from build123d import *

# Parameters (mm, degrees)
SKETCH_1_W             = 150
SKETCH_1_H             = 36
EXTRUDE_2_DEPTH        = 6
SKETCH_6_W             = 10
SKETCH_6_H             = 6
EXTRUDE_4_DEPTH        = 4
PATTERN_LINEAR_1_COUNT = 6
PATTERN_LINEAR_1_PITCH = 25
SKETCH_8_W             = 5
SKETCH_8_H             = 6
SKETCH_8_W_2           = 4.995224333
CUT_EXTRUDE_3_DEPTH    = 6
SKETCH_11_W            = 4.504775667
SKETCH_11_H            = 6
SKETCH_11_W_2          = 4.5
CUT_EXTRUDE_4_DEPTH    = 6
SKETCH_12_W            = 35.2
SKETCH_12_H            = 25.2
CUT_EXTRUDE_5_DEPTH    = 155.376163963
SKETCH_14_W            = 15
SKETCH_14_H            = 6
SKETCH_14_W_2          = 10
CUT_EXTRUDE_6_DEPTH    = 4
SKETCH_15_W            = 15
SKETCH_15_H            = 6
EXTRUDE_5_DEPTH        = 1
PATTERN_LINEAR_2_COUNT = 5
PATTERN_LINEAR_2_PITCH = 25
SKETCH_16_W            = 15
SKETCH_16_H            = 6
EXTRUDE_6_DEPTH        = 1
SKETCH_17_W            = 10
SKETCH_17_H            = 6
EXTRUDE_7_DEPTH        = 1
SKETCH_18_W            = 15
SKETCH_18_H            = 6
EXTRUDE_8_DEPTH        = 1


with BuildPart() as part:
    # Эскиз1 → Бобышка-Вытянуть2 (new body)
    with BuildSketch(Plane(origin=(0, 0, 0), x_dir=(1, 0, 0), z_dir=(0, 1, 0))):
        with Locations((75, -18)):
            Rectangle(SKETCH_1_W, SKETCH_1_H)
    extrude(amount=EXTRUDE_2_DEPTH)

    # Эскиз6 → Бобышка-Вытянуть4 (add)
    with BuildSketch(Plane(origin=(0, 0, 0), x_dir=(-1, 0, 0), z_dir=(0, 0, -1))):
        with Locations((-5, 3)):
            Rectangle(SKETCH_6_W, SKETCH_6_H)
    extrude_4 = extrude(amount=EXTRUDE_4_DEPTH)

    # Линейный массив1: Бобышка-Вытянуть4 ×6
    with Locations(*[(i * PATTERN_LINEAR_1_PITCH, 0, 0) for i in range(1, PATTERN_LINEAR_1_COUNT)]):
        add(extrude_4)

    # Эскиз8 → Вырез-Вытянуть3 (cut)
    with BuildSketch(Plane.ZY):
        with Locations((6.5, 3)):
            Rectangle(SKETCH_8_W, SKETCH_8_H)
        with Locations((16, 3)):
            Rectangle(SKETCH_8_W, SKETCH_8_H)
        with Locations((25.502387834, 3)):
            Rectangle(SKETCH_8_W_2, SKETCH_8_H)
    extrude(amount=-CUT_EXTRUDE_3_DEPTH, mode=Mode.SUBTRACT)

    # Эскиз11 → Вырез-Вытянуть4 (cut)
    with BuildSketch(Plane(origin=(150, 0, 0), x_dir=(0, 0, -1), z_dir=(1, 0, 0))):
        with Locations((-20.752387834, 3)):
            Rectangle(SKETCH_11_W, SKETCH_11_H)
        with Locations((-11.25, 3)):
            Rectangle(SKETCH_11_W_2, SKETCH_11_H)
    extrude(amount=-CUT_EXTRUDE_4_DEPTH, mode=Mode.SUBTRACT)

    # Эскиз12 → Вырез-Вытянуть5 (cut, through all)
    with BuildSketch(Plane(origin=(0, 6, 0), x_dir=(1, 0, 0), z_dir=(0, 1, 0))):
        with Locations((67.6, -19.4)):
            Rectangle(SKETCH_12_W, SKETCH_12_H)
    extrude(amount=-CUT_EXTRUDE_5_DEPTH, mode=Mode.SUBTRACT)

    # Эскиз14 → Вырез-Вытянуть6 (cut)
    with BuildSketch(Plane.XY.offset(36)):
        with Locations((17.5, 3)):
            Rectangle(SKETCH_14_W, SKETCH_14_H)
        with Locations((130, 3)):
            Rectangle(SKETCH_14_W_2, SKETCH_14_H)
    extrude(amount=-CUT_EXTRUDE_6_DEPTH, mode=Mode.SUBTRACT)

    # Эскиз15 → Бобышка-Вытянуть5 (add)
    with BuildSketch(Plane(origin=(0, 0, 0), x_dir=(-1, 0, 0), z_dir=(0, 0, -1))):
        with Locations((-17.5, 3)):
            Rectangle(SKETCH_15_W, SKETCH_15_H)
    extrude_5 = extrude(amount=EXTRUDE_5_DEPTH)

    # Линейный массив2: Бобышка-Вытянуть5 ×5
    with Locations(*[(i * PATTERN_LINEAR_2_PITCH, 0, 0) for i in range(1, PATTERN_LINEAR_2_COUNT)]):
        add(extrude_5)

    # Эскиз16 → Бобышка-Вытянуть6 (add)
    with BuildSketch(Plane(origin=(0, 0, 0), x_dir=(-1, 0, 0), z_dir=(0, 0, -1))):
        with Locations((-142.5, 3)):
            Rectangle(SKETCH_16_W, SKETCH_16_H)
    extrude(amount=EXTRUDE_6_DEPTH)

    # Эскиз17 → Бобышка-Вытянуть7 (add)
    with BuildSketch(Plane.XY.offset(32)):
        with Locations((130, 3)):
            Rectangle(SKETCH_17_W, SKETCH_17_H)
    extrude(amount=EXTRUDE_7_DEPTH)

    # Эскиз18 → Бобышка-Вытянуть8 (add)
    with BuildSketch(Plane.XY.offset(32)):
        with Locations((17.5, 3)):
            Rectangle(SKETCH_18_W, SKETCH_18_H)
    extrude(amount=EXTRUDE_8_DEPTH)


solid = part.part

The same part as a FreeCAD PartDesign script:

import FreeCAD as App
import Part
import Sketcher
Q = App.Units.Quantity

doc = App.newDocument("Part")
params = doc.addObject("Spreadsheet::Sheet", "Params")
for row, (alias, value) in enumerate([
    ("sketch1_width", "150 mm"),
    ("sketch1_height", "36 mm"),
    ("pad1_length", "6 mm"),
    ("sketch2_width", "10 mm"),
    ("sketch2_height", "6 mm"),
    ("pad2_length", "4 mm"),
    ("linearpattern_pitch", "25 mm"),
    ("sketch3_width", "6 mm"),
    ("sketch3_height", "5 mm"),
    ("pocket1_length", "6 mm"),
    ("sketch4_width", "6 mm"),
    ("sketch4_height", "4.5 mm"),
    ("pocket2_length", "6 mm"),
    ("sketch5_width", "35.2 mm"),
    ("sketch5_height", "25.2 mm"),
    ("sketch6_width", "15 mm"),
    ("sketch6_width2", "10 mm"),
    ("sketch6_height", "6 mm"),
    ("pocket4_length", "4 mm"),
    ("sketch7_width", "15 mm"),
    ("sketch7_height", "6 mm"),
    ("pad3_length", "1 mm"),
    ("linearpattern2_pitch", "25 mm"),
    ("sketch8_width", "15 mm"),
    ("sketch8_height", "6 mm"),
    ("pad4_length", "1 mm"),
    ("sketch9_width", "10 mm"),
    ("sketch9_height", "6 mm"),
    ("pad5_length", "1 mm"),
    ("sketch10_width", "15 mm"),
    ("sketch10_height", "6 mm"),
    ("pad6_length", "1 mm"),
], start=1):
    params.set(f"A{row}", alias)
    params.set(f"B{row}", "=" + value)
    params.setAlias(f"B{row}", alias)

body = doc.addObject("PartDesign::Body", "Body")

sketch1 = doc.addObject("Sketcher::SketchObject", "Sketch")
body.addObject(sketch1)
sketch1.AttachmentSupport = (doc.XZ_Plane, [""])
sketch1.MapMode = "FlatFace"
sketch1.addGeometry([
    Part.LineSegment(App.Vector(0, 0, 0), App.Vector(0, 36, 0)),
    Part.LineSegment(App.Vector(0, 36, 0), App.Vector(150, 36, 0)),
    Part.LineSegment(App.Vector(150, 36, 0), App.Vector(150, 0, 0)),
    Part.LineSegment(App.Vector(150, 0, 0), App.Vector(0, 0, 0)),
], False)
sketch1.addConstraint([
    Sketcher.Constraint("Coincident", 0, 2, 1, 1),
    Sketcher.Constraint("Coincident", 1, 2, 2, 1),
    Sketcher.Constraint("Coincident", 2, 2, 3, 1),
    Sketcher.Constraint("Coincident", 3, 2, 0, 1),
    Sketcher.Constraint("Vertical", 0),
    Sketcher.Constraint("Horizontal", 1),
    Sketcher.Constraint("Vertical", 2),
    Sketcher.Constraint("Horizontal", 3),
    Sketcher.Constraint("Coincident", 3, 2, -1, 1),
    Sketcher.Constraint("DistanceX", 1, 1, 1, 2, Q("150 mm")),
    Sketcher.Constraint("DistanceY", 0, 1, 0, 2, Q("36 mm")),
])
sketch1.setExpression("Constraints[9]", "Params.sketch1_width")
sketch1.setExpression("Constraints[10]", "Params.sketch1_height")
pad1 = doc.addObject("PartDesign::Pad", "Pad")
body.addObject(pad1)
pad1.Profile = sketch1
pad1.setExpression("Length", "Params.pad1_length")
pad1.Reversed = True

sketch2 = doc.addObject("Sketcher::SketchObject", "Sketch001")
body.addObject(sketch2)
sketch2.AttachmentSupport = (doc.XY_Plane, [""])
sketch2.MapMode = "FlatFace"
sketch2.addGeometry([
    Part.LineSegment(App.Vector(10, 6, 0), App.Vector(10, 0, 0)),
    Part.LineSegment(App.Vector(10, 0, 0), App.Vector(0, 0, 0)),
    Part.LineSegment(App.Vector(0, 0, 0), App.Vector(0, 6, 0)),
    Part.LineSegment(App.Vector(0, 6, 0), App.Vector(10, 6, 0)),
], False)
sketch2.addConstraint([
    Sketcher.Constraint("Coincident", 0, 2, 1, 1),
    Sketcher.Constraint("Coincident", 1, 2, 2, 1),
    Sketcher.Constraint("Coincident", 2, 2, 3, 1),
    Sketcher.Constraint("Coincident", 3, 2, 0, 1),
    Sketcher.Constraint("Vertical", 0),
    Sketcher.Constraint("Horizontal", 1),
    Sketcher.Constraint("Vertical", 2),
    Sketcher.Constraint("Horizontal", 3),
    Sketcher.Constraint("Coincident", 1, 2, -1, 1),
    Sketcher.Constraint("DistanceX", 1, 2, 1, 1, Q("10 mm")),
    Sketcher.Constraint("DistanceY", 0, 2, 0, 1, Q("6 mm")),
])
sketch2.setExpression("Constraints[9]", "Params.sketch2_width")
sketch2.setExpression("Constraints[10]", "Params.sketch2_height")
pad2 = doc.addObject("PartDesign::Pad", "Pad001")
body.addObject(pad2)
pad2.Profile = sketch2
pad2.setExpression("Length", "Params.pad2_length")
pad2.Reversed = True
doc.recompute()

linearpattern = doc.addObject("PartDesign::LinearPattern", "LinearPattern")
body.addObject(linearpattern)
linearpattern.Originals = [pad2]
linearpattern.Direction = (doc.X_Axis, [""])
linearpattern.Mode = "offset"
linearpattern.setExpression("Offset", "Params.linearpattern_pitch")
linearpattern.Occurrences = 6
body.Tip = linearpattern

sketch3 = doc.addObject("Sketcher::SketchObject", "Sketch002")
body.addObject(sketch3)
sketch3.AttachmentSupport = (doc.YZ_Plane, [""])
sketch3.MapMode = "FlatFace"
sketch3.addGeometry([
    Part.LineSegment(App.Vector(6, 4, 0), App.Vector(0, 4, 0)),
    Part.LineSegment(App.Vector(0, 4, 0), App.Vector(0, 9, 0)),
    Part.LineSegment(App.Vector(0, 9, 0), App.Vector(6, 9, 0)),
    Part.LineSegment(App.Vector(6, 9, 0), App.Vector(6, 4, 0)),
    Part.LineSegment(App.Vector(6, 13.5, 0), App.Vector(0, 13.5, 0)),
    Part.LineSegment(App.Vector(0, 13.5, 0), App.Vector(0, 18.5, 0)),
    Part.LineSegment(App.Vector(0, 18.5, 0), App.Vector(6, 18.5, 0)),
    Part.LineSegment(App.Vector(6, 18.5, 0), App.Vector(6, 13.5, 0)),
    Part.LineSegment(App.Vector(6, 23.004776, 0), App.Vector(0, 23.004776, 0)),
    Part.LineSegment(App.Vector(0, 23.004776, 0), App.Vector(0, 28, 0)),
    Part.LineSegment(App.Vector(0, 28, 0), App.Vector(6, 28, 0)),
    Part.LineSegment(App.Vector(6, 28, 0), App.Vector(6, 23.004776, 0)),
], False)
sketch3.addConstraint([
    Sketcher.Constraint("Coincident", 0, 2, 1, 1),
    Sketcher.Constraint("Coincident", 1, 2, 2, 1),
    Sketcher.Constraint("Coincident", 2, 2, 3, 1),
    Sketcher.Constraint("Coincident", 3, 2, 0, 1),
    Sketcher.Constraint("Coincident", 4, 2, 5, 1),
    Sketcher.Constraint("Coincident", 5, 2, 6, 1),
    Sketcher.Constraint("Coincident", 6, 2, 7, 1),
    Sketcher.Constraint("Coincident", 7, 2, 4, 1),
    Sketcher.Constraint("Coincident", 8, 2, 9, 1),
    Sketcher.Constraint("Coincident", 9, 2, 10, 1),
    Sketcher.Constraint("Coincident", 10, 2, 11, 1),
    Sketcher.Constraint("Coincident", 11, 2, 8, 1),
    Sketcher.Constraint("Horizontal", 0),
    Sketcher.Constraint("Vertical", 1),
    Sketcher.Constraint("Horizontal", 2),
    Sketcher.Constraint("Vertical", 3),
    Sketcher.Constraint("Horizontal", 4),
    Sketcher.Constraint("Vertical", 5),
    Sketcher.Constraint("Horizontal", 6),
    Sketcher.Constraint("Vertical", 7),
    Sketcher.Constraint("Horizontal", 8),
    Sketcher.Constraint("Vertical", 9),
    Sketcher.Constraint("Horizontal", 10),
    Sketcher.Constraint("Vertical", 11),
    Sketcher.Constraint("PointOnObject", 0, 2, -2),
    Sketcher.Constraint("PointOnObject", 4, 2, -2),
    Sketcher.Constraint("PointOnObject", 8, 2, -2),
    Sketcher.Constraint("Vertical", 3, 2, 6, 2),
    Sketcher.Constraint("Vertical", 7, 2, 10, 2),
    Sketcher.Constraint("Equal", 3, 5),
    Sketcher.Constraint("DistanceX", 0, 2, 0, 1, Q("6 mm")),
    Sketcher.Constraint("DistanceY", 1, 1, 1, 2, Q("5 mm")),
    Sketcher.Constraint("DistanceY", -1, 1, 0, 2, Q("4 mm")),
    Sketcher.Constraint("DistanceY", -1, 1, 9, 2, Q("28 mm")),
    Sketcher.Constraint("DistanceY", -1, 1, 4, 2, Q("13.5 mm")),
    Sketcher.Constraint("DistanceY", 9, 1, 9, 2, Q("4.995224 mm")),
])
sketch3.setExpression("Constraints[30]", "Params.sketch3_width")
sketch3.setExpression("Constraints[31]", "Params.sketch3_height")
pocket1 = doc.addObject("PartDesign::Pocket", "Pocket")
body.addObject(pocket1)
pocket1.Profile = sketch3
pocket1.setExpression("Length", "Params.pocket1_length")
pocket1.Reversed = True

sketch4 = doc.addObject("Sketcher::SketchObject", "Sketch003")
body.addObject(sketch4)
sketch4.AttachmentSupport = (doc.YZ_Plane, [""])
sketch4.MapMode = "FlatFace"
sketch4.AttachmentOffset = App.Placement(App.Vector(0, 0, 150), App.Rotation())
sketch4.addGeometry([
    Part.LineSegment(App.Vector(6, 23.004776, 0), App.Vector(0, 23.004776, 0)),
    Part.LineSegment(App.Vector(0, 23.004776, 0), App.Vector(0, 18.5, 0)),
    Part.LineSegment(App.Vector(0, 18.5, 0), App.Vector(6, 18.5, 0)),
    Part.LineSegment(App.Vector(6, 18.5, 0), App.Vector(6, 23.004776, 0)),
    Part.LineSegment(App.Vector(6, 13.5, 0), App.Vector(0, 13.5, 0)),
    Part.LineSegment(App.Vector(0, 13.5, 0), App.Vector(0, 9, 0)),
    Part.LineSegment(App.Vector(0, 9, 0), App.Vector(6, 9, 0)),
    Part.LineSegment(App.Vector(6, 9, 0), App.Vector(6, 13.5, 0)),
], False)
sketch4.addConstraint([
    Sketcher.Constraint("Coincident", 0, 2, 1, 1),
    Sketcher.Constraint("Coincident", 1, 2, 2, 1),
    Sketcher.Constraint("Coincident", 2, 2, 3, 1),
    Sketcher.Constraint("Coincident", 3, 2, 0, 1),
    Sketcher.Constraint("Coincident", 4, 2, 5, 1),
    Sketcher.Constraint("Coincident", 5, 2, 6, 1),
    Sketcher.Constraint("Coincident", 6, 2, 7, 1),
    Sketcher.Constraint("Coincident", 7, 2, 4, 1),
    Sketcher.Constraint("Horizontal", 0),
    Sketcher.Constraint("Vertical", 1),
    Sketcher.Constraint("Horizontal", 2),
    Sketcher.Constraint("Vertical", 3),
    Sketcher.Constraint("Horizontal", 4),
    Sketcher.Constraint("Vertical", 5),
    Sketcher.Constraint("Horizontal", 6),
    Sketcher.Constraint("Vertical", 7),
    Sketcher.Constraint("PointOnObject", 0, 2, -2),
    Sketcher.Constraint("PointOnObject", 4, 2, -2),
    Sketcher.Constraint("Vertical", 3, 2, 6, 2),
    Sketcher.Constraint("DistanceX", 0, 2, 0, 1, Q("6 mm")),
    Sketcher.Constraint("DistanceY", 5, 2, 5, 1, Q("4.5 mm")),
    Sketcher.Constraint("DistanceY", -1, 1, 5, 2, Q("9 mm")),
    Sketcher.Constraint("DistanceY", 4, 2, 1, 2, Q("5 mm")),
    Sketcher.Constraint("DistanceY", 1, 2, 1, 1, Q("4.504776 mm")),
])
sketch4.setExpression("Constraints[19]", "Params.sketch4_width")
sketch4.setExpression("Constraints[20]", "Params.sketch4_height")
pocket2 = doc.addObject("PartDesign::Pocket", "Pocket001")
body.addObject(pocket2)
pocket2.Profile = sketch4
pocket2.setExpression("Length", "Params.pocket2_length")

sketch5 = doc.addObject("Sketcher::SketchObject", "Sketch004")
body.addObject(sketch5)
sketch5.AttachmentSupport = (doc.XZ_Plane, [""])
sketch5.MapMode = "FlatFace"
sketch5.AttachmentOffset = App.Placement(App.Vector(0, 0, -6), App.Rotation())
sketch5.addGeometry([
    Part.LineSegment(App.Vector(50, 6.8, 0), App.Vector(50, 32, 0)),
    Part.LineSegment(App.Vector(50, 32, 0), App.Vector(85.2, 32, 0)),
    Part.LineSegment(App.Vector(85.2, 32, 0), App.Vector(85.2, 6.8, 0)),
    Part.LineSegment(App.Vector(85.2, 6.8, 0), App.Vector(50, 6.8, 0)),
], False)
sketch5.addConstraint([
    Sketcher.Constraint("Coincident", 0, 2, 1, 1),
    Sketcher.Constraint("Coincident", 1, 2, 2, 1),
    Sketcher.Constraint("Coincident", 2, 2, 3, 1),
    Sketcher.Constraint("Coincident", 3, 2, 0, 1),
    Sketcher.Constraint("Vertical", 0),
    Sketcher.Constraint("Horizontal", 1),
    Sketcher.Constraint("Vertical", 2),
    Sketcher.Constraint("Horizontal", 3),
    Sketcher.Constraint("DistanceX", 1, 1, 1, 2, Q("35.2 mm")),
    Sketcher.Constraint("DistanceY", 0, 1, 0, 2, Q("25.2 mm")),
    Sketcher.Constraint("DistanceX", -1, 1, 0, 2, Q("50 mm")),
    Sketcher.Constraint("DistanceY", -1, 1, 0, 2, Q("32 mm")),
])
sketch5.setExpression("Constraints[8]", "Params.sketch5_width")
sketch5.setExpression("Constraints[9]", "Params.sketch5_height")
pocket3 = doc.addObject("PartDesign::Pocket", "Pocket002")
body.addObject(pocket3)
pocket3.Profile = sketch5
pocket3.Type = "ThroughAll"
pocket3.Reversed = True

sketch6 = doc.addObject("Sketcher::SketchObject", "Sketch005")
body.addObject(sketch6)
sketch6.AttachmentSupport = (doc.XY_Plane, [""])
sketch6.MapMode = "FlatFace"
sketch6.AttachmentOffset = App.Placement(App.Vector(0, 0, 36), App.Rotation())
sketch6.addGeometry([
    Part.LineSegment(App.Vector(10, 6, 0), App.Vector(10, 0, 0)),
    Part.LineSegment(App.Vector(10, 0, 0), App.Vector(25, 0, 0)),
    Part.LineSegment(App.Vector(25, 0, 0), App.Vector(25, 6, 0)),
    Part.LineSegment(App.Vector(25, 6, 0), App.Vector(10, 6, 0)),
    Part.LineSegment(App.Vector(125, 6, 0), App.Vector(125, 0, 0)),
    Part.LineSegment(App.Vector(125, 0, 0), App.Vector(135, 0, 0)),
    Part.LineSegment(App.Vector(135, 0, 0), App.Vector(135, 6, 0)),
    Part.LineSegment(App.Vector(135, 6, 0), App.Vector(125, 6, 0)),
], False)
sketch6.addConstraint([
    Sketcher.Constraint("Coincident", 0, 2, 1, 1),
    Sketcher.Constraint("Coincident", 1, 2, 2, 1),
    Sketcher.Constraint("Coincident", 2, 2, 3, 1),
    Sketcher.Constraint("Coincident", 3, 2, 0, 1),
    Sketcher.Constraint("Coincident", 4, 2, 5, 1),
    Sketcher.Constraint("Coincident", 5, 2, 6, 1),
    Sketcher.Constraint("Coincident", 6, 2, 7, 1),
    Sketcher.Constraint("Coincident", 7, 2, 4, 1),
    Sketcher.Constraint("Vertical", 0),
    Sketcher.Constraint("Horizontal", 1),
    Sketcher.Constraint("Vertical", 2),
    Sketcher.Constraint("Horizontal", 3),
    Sketcher.Constraint("Vertical", 4),
    Sketcher.Constraint("Horizontal", 5),
    Sketcher.Constraint("Vertical", 6),
    Sketcher.Constraint("Horizontal", 7),
    Sketcher.Constraint("PointOnObject", 0, 2, -1),
    Sketcher.Constraint("PointOnObject", 4, 2, -1),
    Sketcher.Constraint("Horizontal", 3, 2, 6, 2),
    Sketcher.Constraint("DistanceX", 1, 1, 1, 2, Q("15 mm")),
    Sketcher.Constraint("DistanceX", 5, 1, 5, 2, Q("10 mm")),
    Sketcher.Constraint("DistanceY", 0, 2, 0, 1, Q("6 mm")),
    Sketcher.Constraint("DistanceX", -1, 1, 0, 2, Q("10 mm")),
    Sketcher.Constraint("DistanceX", -1, 1, 4, 2, Q("125 mm")),
])
sketch6.setExpression("Constraints[19]", "Params.sketch6_width")
sketch6.setExpression("Constraints[20]", "Params.sketch6_width2")
sketch6.setExpression("Constraints[21]", "Params.sketch6_height")
pocket4 = doc.addObject("PartDesign::Pocket", "Pocket003")
body.addObject(pocket4)
pocket4.Profile = sketch6
pocket4.setExpression("Length", "Params.pocket4_length")

sketch7 = doc.addObject("Sketcher::SketchObject", "Sketch006")
body.addObject(sketch7)
sketch7.AttachmentSupport = (doc.XY_Plane, [""])
sketch7.MapMode = "FlatFace"
sketch7.addGeometry([
    Part.LineSegment(App.Vector(25, 6, 0), App.Vector(25, 0, 0)),
    Part.LineSegment(App.Vector(25, 0, 0), App.Vector(10, 0, 0)),
    Part.LineSegment(App.Vector(10, 0, 0), App.Vector(10, 6, 0)),
    Part.LineSegment(App.Vector(10, 6, 0), App.Vector(25, 6, 0)),
], False)
sketch7.addConstraint([
    Sketcher.Constraint("Coincident", 0, 2, 1, 1),
    Sketcher.Constraint("Coincident", 1, 2, 2, 1),
    Sketcher.Constraint("Coincident", 2, 2, 3, 1),
    Sketcher.Constraint("Coincident", 3, 2, 0, 1),
    Sketcher.Constraint("Vertical", 0),
    Sketcher.Constraint("Horizontal", 1),
    Sketcher.Constraint("Vertical", 2),
    Sketcher.Constraint("Horizontal", 3),
    Sketcher.Constraint("PointOnObject", 0, 2, -1),
    Sketcher.Constraint("DistanceX", 1, 2, 1, 1, Q("15 mm")),
    Sketcher.Constraint("DistanceY", 0, 2, 0, 1, Q("6 mm")),
    Sketcher.Constraint("DistanceX", -1, 1, 0, 2, Q("25 mm")),
])
sketch7.setExpression("Constraints[9]", "Params.sketch7_width")
sketch7.setExpression("Constraints[10]", "Params.sketch7_height")
pad3 = doc.addObject("PartDesign::Pad", "Pad002")
body.addObject(pad3)
pad3.Profile = sketch7
pad3.setExpression("Length", "Params.pad3_length")
pad3.Reversed = True
doc.recompute()

linearpattern2 = doc.addObject("PartDesign::LinearPattern", "LinearPattern001")
body.addObject(linearpattern2)
linearpattern2.Originals = [pad3]
linearpattern2.Direction = (doc.X_Axis, [""])
linearpattern2.Mode = "offset"
linearpattern2.setExpression("Offset", "Params.linearpattern2_pitch")
linearpattern2.Occurrences = 5
body.Tip = linearpattern2

sketch8 = doc.addObject("Sketcher::SketchObject", "Sketch007")
body.addObject(sketch8)
sketch8.AttachmentSupport = (doc.XY_Plane, [""])
sketch8.MapMode = "FlatFace"
sketch8.addGeometry([
    Part.LineSegment(App.Vector(150, 6, 0), App.Vector(150, 0, 0)),
    Part.LineSegment(App.Vector(150, 0, 0), App.Vector(135, 0, 0)),
    Part.LineSegment(App.Vector(135, 0, 0), App.Vector(135, 6, 0)),
    Part.LineSegment(App.Vector(135, 6, 0), App.Vector(150, 6, 0)),
], False)
sketch8.addConstraint([
    Sketcher.Constraint("Coincident", 0, 2, 1, 1),
    Sketcher.Constraint("Coincident", 1, 2, 2, 1),
    Sketcher.Constraint("Coincident", 2, 2, 3, 1),
    Sketcher.Constraint("Coincident", 3, 2, 0, 1),
    Sketcher.Constraint("Vertical", 0),
    Sketcher.Constraint("Horizontal", 1),
    Sketcher.Constraint("Vertical", 2),
    Sketcher.Constraint("Horizontal", 3),
    Sketcher.Constraint("PointOnObject", 0, 2, -1),
    Sketcher.Constraint("DistanceX", 1, 2, 1, 1, Q("15 mm")),
    Sketcher.Constraint("DistanceY", 0, 2, 0, 1, Q("6 mm")),
    Sketcher.Constraint("DistanceX", -1, 1, 0, 2, Q("150 mm")),
])
sketch8.setExpression("Constraints[9]", "Params.sketch8_width")
sketch8.setExpression("Constraints[10]", "Params.sketch8_height")
pad4 = doc.addObject("PartDesign::Pad", "Pad003")
body.addObject(pad4)
pad4.Profile = sketch8
pad4.setExpression("Length", "Params.pad4_length")
pad4.Reversed = True

sketch9 = doc.addObject("Sketcher::SketchObject", "Sketch008")
body.addObject(sketch9)
sketch9.AttachmentSupport = (doc.XY_Plane, [""])
sketch9.MapMode = "FlatFace"
sketch9.AttachmentOffset = App.Placement(App.Vector(0, 0, 32), App.Rotation())
sketch9.addGeometry([
    Part.LineSegment(App.Vector(125, 6, 0), App.Vector(125, 0, 0)),
    Part.LineSegment(App.Vector(125, 0, 0), App.Vector(135, 0, 0)),
    Part.LineSegment(App.Vector(135, 0, 0), App.Vector(135, 6, 0)),
    Part.LineSegment(App.Vector(135, 6, 0), App.Vector(125, 6, 0)),
], False)
sketch9.addConstraint([
    Sketcher.Constraint("Coincident", 0, 2, 1, 1),
    Sketcher.Constraint("Coincident", 1, 2, 2, 1),
    Sketcher.Constraint("Coincident", 2, 2, 3, 1),
    Sketcher.Constraint("Coincident", 3, 2, 0, 1),
    Sketcher.Constraint("Vertical", 0),
    Sketcher.Constraint("Horizontal", 1),
    Sketcher.Constraint("Vertical", 2),
    Sketcher.Constraint("Horizontal", 3),
    Sketcher.Constraint("PointOnObject", 0, 2, -1),
    Sketcher.Constraint("DistanceX", 1, 1, 1, 2, Q("10 mm")),
    Sketcher.Constraint("DistanceY", 0, 2, 0, 1, Q("6 mm")),
    Sketcher.Constraint("DistanceX", -1, 1, 0, 2, Q("125 mm")),
])
sketch9.setExpression("Constraints[9]", "Params.sketch9_width")
sketch9.setExpression("Constraints[10]", "Params.sketch9_height")
pad5 = doc.addObject("PartDesign::Pad", "Pad004")
body.addObject(pad5)
pad5.Profile = sketch9
pad5.setExpression("Length", "Params.pad5_length")

sketch10 = doc.addObject("Sketcher::SketchObject", "Sketch009")
body.addObject(sketch10)
sketch10.AttachmentSupport = (doc.XY_Plane, [""])
sketch10.MapMode = "FlatFace"
sketch10.AttachmentOffset = App.Placement(App.Vector(0, 0, 32), App.Rotation())
sketch10.addGeometry([
    Part.LineSegment(App.Vector(10, 6, 0), App.Vector(10, 0, 0)),
    Part.LineSegment(App.Vector(10, 0, 0), App.Vector(25, 0, 0)),
    Part.LineSegment(App.Vector(25, 0, 0), App.Vector(25, 6, 0)),
    Part.LineSegment(App.Vector(25, 6, 0), App.Vector(10, 6, 0)),
], False)
sketch10.addConstraint([
    Sketcher.Constraint("Coincident", 0, 2, 1, 1),
    Sketcher.Constraint("Coincident", 1, 2, 2, 1),
    Sketcher.Constraint("Coincident", 2, 2, 3, 1),
    Sketcher.Constraint("Coincident", 3, 2, 0, 1),
    Sketcher.Constraint("Vertical", 0),
    Sketcher.Constraint("Horizontal", 1),
    Sketcher.Constraint("Vertical", 2),
    Sketcher.Constraint("Horizontal", 3),
    Sketcher.Constraint("PointOnObject", 0, 2, -1),
    Sketcher.Constraint("DistanceX", 1, 1, 1, 2, Q("15 mm")),
    Sketcher.Constraint("DistanceY", 0, 2, 0, 1, Q("6 mm")),
    Sketcher.Constraint("DistanceX", -1, 1, 0, 2, Q("10 mm")),
])
sketch10.setExpression("Constraints[9]", "Params.sketch10_width")
sketch10.setExpression("Constraints[10]", "Params.sketch10_height")
pad6 = doc.addObject("PartDesign::Pad", "Pad005")
body.addObject(pad6)
pad6.Profile = sketch10
pad6.setExpression("Length", "Params.pad6_length")

doc.recompute()
